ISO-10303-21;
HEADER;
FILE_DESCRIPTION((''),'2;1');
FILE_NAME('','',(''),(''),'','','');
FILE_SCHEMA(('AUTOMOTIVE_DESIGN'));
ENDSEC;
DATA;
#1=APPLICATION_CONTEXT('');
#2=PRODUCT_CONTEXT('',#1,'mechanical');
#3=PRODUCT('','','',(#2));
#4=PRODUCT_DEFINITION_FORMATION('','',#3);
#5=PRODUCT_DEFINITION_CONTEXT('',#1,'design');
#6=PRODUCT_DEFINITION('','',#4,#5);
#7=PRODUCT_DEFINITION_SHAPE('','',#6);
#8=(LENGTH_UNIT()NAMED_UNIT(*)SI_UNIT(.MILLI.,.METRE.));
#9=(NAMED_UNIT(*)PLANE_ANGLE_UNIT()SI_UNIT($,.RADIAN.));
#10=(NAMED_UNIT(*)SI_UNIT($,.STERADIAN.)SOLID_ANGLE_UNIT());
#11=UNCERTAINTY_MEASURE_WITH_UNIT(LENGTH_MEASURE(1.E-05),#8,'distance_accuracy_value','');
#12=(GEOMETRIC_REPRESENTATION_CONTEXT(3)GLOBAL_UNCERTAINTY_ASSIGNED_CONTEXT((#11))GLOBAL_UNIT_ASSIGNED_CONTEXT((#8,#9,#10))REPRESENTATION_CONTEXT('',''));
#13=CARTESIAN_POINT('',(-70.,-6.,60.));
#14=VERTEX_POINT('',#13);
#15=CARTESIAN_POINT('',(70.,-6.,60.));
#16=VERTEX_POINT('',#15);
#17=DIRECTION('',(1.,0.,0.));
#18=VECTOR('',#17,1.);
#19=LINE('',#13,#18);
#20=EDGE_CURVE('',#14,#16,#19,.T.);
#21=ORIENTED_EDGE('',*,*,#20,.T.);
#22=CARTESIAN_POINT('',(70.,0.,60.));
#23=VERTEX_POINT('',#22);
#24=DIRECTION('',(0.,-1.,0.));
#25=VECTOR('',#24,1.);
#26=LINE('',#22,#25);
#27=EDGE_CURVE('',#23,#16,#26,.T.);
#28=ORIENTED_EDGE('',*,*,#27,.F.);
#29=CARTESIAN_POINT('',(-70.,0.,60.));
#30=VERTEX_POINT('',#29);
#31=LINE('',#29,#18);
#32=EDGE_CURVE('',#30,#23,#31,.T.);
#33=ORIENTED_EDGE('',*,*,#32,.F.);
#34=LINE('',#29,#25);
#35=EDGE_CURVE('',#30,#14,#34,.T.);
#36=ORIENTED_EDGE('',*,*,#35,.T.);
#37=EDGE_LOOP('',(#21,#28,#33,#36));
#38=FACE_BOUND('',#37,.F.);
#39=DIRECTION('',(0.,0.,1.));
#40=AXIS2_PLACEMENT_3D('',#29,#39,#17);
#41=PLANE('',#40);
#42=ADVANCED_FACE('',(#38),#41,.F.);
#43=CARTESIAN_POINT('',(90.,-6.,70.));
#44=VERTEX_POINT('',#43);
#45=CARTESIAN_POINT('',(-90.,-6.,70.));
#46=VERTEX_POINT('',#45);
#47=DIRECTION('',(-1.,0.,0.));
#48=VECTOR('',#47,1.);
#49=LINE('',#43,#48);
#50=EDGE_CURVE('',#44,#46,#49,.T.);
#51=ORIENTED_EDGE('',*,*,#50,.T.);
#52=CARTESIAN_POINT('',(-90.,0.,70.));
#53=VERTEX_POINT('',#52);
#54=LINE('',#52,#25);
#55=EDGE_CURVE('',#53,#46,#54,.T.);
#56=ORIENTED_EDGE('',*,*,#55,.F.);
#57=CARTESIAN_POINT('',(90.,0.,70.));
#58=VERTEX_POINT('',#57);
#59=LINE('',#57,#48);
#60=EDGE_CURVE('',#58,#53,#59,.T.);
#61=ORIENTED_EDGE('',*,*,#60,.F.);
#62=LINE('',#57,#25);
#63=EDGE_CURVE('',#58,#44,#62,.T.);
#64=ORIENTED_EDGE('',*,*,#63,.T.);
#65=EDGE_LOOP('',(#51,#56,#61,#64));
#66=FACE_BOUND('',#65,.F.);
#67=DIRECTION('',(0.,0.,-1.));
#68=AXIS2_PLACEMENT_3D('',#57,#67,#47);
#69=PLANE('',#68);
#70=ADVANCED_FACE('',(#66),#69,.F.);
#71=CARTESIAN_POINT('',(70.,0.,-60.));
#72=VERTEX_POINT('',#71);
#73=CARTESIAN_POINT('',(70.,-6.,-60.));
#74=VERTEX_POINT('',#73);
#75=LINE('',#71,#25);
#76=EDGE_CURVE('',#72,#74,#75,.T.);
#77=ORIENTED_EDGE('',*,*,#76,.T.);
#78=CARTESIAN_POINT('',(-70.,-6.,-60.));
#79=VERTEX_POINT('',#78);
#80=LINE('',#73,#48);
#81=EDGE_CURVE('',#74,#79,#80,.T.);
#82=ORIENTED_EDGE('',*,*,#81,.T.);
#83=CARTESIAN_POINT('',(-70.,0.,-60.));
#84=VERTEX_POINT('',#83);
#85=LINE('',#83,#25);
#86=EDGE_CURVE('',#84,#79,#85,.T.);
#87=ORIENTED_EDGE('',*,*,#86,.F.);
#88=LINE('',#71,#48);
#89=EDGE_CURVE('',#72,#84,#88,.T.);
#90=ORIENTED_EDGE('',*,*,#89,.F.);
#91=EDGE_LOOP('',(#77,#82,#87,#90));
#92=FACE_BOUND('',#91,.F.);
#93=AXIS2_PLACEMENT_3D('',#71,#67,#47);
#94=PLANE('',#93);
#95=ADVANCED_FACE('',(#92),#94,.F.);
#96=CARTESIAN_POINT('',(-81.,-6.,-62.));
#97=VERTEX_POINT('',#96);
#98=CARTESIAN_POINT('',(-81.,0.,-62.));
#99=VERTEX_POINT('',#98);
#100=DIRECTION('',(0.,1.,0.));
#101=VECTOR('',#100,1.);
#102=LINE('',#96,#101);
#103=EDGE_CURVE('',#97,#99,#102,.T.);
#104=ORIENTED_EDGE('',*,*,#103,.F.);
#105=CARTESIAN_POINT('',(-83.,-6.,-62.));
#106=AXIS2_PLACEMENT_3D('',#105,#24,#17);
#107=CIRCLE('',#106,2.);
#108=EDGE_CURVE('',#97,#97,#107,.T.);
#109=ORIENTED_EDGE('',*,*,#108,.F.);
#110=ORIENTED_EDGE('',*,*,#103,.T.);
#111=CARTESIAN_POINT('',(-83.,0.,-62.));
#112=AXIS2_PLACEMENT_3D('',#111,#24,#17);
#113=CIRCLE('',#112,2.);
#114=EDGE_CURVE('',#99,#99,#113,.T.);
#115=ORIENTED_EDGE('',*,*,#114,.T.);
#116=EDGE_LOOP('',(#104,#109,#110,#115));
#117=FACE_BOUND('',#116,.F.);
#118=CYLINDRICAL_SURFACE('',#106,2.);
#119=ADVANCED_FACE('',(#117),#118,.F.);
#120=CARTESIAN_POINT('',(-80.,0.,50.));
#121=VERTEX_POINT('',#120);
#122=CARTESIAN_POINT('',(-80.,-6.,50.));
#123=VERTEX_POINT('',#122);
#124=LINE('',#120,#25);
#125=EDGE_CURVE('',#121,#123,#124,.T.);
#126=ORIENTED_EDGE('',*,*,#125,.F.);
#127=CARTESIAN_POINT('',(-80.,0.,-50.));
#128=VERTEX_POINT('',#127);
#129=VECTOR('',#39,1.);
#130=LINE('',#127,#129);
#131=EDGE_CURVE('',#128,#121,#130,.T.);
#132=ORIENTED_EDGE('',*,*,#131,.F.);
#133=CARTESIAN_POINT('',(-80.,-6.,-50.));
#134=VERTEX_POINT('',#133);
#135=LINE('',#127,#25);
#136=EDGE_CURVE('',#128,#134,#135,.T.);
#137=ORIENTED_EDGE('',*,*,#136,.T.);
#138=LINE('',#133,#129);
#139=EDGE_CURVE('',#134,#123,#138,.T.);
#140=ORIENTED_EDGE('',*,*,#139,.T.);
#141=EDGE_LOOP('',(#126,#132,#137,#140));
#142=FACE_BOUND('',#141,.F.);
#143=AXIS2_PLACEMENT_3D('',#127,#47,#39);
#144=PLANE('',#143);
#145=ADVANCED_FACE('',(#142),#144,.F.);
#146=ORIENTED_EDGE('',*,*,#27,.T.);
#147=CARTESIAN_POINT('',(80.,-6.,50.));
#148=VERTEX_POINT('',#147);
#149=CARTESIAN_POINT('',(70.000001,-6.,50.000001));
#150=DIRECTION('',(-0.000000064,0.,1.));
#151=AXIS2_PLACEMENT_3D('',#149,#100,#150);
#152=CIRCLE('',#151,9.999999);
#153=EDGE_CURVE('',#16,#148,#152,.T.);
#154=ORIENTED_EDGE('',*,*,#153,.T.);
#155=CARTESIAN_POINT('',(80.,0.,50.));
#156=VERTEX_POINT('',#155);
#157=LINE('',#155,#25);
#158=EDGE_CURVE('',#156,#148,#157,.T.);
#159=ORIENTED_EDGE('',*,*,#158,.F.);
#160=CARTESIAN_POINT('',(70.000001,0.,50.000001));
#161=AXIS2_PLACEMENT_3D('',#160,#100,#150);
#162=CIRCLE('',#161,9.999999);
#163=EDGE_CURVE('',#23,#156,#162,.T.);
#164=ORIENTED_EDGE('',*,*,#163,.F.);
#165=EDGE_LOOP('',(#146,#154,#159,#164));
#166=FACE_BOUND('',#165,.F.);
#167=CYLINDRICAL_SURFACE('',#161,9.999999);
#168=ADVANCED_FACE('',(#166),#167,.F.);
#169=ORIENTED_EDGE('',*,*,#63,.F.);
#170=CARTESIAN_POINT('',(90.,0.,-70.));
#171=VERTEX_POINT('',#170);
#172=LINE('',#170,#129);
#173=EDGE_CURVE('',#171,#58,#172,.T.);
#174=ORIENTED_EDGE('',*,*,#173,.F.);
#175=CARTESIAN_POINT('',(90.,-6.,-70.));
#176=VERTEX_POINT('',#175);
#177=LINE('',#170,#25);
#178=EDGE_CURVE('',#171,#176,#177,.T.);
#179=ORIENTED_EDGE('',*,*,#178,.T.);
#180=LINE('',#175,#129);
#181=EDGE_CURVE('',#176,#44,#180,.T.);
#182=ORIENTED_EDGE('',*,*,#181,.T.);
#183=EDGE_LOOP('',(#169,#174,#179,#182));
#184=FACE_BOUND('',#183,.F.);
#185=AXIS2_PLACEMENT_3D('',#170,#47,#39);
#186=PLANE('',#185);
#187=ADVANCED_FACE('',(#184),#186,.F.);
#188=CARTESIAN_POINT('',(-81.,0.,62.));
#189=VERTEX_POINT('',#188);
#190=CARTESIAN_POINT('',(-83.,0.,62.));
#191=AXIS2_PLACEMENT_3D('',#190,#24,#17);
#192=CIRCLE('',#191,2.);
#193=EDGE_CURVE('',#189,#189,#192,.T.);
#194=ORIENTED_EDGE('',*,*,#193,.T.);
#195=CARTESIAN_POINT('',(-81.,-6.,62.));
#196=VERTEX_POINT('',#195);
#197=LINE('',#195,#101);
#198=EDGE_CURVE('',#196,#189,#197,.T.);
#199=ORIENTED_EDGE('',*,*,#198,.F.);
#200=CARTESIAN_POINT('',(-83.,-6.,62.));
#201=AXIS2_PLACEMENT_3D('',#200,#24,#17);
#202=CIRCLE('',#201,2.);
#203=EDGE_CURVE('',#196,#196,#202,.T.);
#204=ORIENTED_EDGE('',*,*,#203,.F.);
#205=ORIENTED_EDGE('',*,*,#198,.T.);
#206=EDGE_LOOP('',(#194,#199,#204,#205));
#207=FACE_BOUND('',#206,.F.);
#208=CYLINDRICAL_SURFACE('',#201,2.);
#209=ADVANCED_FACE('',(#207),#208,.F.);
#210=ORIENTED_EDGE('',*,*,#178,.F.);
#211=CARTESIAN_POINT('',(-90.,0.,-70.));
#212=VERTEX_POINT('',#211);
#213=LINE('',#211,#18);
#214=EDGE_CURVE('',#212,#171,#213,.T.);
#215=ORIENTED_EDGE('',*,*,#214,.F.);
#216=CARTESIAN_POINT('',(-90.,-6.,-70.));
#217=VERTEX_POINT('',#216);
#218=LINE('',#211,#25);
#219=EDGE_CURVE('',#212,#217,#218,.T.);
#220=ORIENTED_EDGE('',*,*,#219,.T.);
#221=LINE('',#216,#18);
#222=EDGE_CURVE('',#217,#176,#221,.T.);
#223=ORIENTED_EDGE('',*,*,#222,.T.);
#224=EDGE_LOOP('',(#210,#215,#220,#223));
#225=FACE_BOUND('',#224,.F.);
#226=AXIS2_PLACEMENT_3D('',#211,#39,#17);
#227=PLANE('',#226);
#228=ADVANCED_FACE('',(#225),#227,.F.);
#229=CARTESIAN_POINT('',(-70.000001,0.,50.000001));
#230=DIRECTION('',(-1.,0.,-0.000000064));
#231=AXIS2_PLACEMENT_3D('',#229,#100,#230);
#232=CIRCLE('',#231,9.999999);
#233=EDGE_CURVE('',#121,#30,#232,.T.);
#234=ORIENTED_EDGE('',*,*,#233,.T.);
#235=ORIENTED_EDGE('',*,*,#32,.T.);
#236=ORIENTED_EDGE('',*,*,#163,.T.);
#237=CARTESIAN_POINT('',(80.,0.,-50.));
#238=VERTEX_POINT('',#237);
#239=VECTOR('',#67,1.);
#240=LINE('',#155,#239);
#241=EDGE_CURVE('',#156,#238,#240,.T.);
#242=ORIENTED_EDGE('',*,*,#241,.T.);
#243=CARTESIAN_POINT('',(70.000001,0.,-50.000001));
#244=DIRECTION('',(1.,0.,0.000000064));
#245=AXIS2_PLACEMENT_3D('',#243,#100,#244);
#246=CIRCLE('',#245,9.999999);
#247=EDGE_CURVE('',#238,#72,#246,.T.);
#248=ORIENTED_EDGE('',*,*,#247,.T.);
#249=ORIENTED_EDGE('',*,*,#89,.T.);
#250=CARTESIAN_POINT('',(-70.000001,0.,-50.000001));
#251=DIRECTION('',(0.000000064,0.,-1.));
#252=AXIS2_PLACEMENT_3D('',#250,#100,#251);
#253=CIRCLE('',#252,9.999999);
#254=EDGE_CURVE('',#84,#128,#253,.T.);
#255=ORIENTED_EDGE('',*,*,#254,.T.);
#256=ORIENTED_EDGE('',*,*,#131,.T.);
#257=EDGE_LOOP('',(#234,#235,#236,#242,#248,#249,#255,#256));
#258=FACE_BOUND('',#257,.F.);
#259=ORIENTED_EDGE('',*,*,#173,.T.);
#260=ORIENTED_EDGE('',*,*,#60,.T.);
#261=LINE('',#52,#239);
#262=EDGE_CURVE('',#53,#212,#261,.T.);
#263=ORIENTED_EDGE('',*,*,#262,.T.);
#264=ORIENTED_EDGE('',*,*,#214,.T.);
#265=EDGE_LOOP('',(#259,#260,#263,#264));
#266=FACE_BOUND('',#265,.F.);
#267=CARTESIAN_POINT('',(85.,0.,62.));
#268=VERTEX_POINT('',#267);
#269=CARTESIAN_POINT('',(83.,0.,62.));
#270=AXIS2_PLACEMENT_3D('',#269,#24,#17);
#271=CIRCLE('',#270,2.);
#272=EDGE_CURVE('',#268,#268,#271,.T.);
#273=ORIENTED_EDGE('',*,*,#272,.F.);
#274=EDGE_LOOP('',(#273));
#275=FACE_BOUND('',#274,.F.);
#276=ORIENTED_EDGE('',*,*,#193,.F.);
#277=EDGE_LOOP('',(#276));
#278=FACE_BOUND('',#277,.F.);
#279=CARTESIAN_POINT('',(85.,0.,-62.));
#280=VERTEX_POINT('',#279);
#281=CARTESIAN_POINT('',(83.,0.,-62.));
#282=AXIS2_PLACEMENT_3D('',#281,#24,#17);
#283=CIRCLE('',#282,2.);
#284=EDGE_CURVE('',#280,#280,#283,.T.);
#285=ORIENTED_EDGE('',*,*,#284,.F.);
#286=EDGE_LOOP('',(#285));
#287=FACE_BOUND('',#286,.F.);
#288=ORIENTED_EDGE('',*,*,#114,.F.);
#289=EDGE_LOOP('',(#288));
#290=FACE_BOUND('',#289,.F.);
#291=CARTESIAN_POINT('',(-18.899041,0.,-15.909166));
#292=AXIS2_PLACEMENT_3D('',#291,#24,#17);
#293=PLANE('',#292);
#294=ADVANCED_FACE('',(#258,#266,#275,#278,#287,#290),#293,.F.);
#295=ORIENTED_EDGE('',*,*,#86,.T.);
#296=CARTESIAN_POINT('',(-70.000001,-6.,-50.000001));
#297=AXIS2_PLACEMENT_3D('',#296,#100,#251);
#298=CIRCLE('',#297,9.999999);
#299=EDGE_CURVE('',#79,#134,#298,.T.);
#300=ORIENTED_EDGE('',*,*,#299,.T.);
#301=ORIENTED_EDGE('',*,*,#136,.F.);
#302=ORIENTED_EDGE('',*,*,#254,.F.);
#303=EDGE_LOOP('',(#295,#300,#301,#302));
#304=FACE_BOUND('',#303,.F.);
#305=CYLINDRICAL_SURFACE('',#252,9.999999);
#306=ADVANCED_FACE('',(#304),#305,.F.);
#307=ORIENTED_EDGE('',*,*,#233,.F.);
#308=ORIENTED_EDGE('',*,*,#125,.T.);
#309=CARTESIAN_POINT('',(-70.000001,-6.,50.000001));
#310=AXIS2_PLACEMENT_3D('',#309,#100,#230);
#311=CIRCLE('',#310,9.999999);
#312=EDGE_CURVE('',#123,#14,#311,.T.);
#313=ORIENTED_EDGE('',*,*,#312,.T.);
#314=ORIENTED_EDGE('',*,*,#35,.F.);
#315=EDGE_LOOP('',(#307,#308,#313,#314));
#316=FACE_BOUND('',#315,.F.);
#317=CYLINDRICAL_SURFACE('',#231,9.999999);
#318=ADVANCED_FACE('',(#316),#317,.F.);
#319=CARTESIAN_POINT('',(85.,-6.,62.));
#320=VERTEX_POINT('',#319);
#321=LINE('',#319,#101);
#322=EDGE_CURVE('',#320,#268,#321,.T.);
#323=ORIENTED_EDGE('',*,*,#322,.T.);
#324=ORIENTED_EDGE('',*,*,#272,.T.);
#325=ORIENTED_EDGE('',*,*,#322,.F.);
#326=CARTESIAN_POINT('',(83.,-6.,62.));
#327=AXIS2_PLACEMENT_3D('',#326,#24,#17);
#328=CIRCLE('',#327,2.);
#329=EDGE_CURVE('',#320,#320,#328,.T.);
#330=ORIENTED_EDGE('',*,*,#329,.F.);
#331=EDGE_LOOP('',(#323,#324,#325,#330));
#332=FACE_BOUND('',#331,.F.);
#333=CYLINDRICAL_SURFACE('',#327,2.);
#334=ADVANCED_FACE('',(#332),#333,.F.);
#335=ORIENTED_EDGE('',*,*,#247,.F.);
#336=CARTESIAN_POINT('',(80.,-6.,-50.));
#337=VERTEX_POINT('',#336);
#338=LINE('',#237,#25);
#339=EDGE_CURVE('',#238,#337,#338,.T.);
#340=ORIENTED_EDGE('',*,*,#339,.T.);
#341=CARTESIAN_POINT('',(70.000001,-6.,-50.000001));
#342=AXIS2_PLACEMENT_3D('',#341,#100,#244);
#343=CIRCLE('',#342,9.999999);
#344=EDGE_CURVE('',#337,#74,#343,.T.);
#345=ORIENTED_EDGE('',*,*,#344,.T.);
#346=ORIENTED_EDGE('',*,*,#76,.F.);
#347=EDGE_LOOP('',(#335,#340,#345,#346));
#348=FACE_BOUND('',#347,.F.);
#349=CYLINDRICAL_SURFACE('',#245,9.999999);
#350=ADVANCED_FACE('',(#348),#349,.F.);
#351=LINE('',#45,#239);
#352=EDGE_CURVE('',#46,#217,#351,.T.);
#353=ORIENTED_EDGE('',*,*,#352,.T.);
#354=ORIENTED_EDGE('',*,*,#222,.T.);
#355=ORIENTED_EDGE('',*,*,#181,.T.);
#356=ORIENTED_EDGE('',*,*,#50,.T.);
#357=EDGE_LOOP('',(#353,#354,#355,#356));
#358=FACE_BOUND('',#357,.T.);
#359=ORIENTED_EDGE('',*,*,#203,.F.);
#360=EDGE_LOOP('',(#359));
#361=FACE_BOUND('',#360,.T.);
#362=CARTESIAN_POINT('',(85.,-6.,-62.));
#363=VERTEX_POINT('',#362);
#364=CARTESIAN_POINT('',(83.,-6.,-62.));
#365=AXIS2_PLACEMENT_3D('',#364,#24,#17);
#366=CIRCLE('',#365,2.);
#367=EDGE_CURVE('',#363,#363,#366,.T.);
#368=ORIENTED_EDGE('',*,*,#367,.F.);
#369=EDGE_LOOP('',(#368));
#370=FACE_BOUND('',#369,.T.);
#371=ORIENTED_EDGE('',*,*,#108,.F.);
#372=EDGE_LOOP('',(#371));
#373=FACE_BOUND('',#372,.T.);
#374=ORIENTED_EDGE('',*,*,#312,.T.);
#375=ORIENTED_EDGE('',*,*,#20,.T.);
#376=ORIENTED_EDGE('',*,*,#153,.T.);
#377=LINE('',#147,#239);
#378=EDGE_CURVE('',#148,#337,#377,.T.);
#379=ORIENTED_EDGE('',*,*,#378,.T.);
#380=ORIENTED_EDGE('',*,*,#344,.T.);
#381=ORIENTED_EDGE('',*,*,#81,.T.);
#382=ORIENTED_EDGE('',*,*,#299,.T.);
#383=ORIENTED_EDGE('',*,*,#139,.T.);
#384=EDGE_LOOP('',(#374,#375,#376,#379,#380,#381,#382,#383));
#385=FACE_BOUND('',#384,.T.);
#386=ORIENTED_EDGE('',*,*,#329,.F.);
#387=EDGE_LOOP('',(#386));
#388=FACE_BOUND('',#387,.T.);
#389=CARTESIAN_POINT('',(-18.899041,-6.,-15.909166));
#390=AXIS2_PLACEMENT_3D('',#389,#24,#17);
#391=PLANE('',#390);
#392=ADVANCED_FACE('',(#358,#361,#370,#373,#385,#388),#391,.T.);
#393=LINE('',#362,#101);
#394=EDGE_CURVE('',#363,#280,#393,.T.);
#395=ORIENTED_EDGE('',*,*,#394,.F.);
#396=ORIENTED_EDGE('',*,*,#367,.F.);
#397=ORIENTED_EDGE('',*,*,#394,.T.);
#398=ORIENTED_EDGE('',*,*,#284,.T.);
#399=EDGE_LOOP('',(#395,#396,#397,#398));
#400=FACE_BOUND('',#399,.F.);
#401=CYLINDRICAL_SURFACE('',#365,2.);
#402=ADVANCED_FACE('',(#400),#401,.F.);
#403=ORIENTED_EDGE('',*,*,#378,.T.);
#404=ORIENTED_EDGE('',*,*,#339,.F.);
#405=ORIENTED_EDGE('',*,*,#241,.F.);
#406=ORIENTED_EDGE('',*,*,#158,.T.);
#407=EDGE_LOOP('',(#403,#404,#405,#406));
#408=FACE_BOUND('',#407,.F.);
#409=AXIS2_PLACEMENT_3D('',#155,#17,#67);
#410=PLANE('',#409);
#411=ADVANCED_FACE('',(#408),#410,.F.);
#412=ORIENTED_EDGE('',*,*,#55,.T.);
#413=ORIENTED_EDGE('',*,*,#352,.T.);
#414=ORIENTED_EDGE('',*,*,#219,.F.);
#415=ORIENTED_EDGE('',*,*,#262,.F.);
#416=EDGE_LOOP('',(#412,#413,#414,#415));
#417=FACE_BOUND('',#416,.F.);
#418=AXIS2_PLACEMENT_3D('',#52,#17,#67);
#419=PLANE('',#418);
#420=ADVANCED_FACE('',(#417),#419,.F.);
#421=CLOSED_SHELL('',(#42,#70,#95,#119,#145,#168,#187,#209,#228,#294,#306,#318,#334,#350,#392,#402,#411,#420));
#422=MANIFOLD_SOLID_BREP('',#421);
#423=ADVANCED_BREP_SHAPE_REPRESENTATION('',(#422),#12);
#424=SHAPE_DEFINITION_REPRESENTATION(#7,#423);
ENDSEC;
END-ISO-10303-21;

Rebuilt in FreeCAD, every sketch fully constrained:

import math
import FreeCAD as App
import Part
import Sketcher
from FreeCAD import Vector


def add_polygon(sketch, points):
    """Adds a closed chain of lines whose ends are joined by coincident constraints."""
    first, n = sketch.GeometryCount, len(points)
    for a, b in zip(points, points[1:] + points[:1]):
        sketch.addGeometry(Part.LineSegment(App.Vector(*a, 0), App.Vector(*b, 0)), False)
    for i in range(n):
        sketch.addConstraint(Sketcher.Constraint("Coincident", first + i, 2, first + (i + 1) % n, 1))

doc = App.newDocument("Part")
body = doc.addObject("PartDesign::Body", "Body")

# Sketch on XZ plane
sketch1 = doc.addObject("Sketcher::SketchObject", "Sketch")
body.addObject(sketch1)
sketch1.AttachmentSupport = (doc.XZ_Plane, [""])
sketch1.MapMode = "FlatFace"
add_polygon(sketch1, [(-90, 70), (-90, -70), (90, -70), (90, 70)])  # lines 0-3
sketch1.addGeometry(Part.ArcOfCircle(Part.Circle(Vector(70, -50, 0), Vector(0, 0, 1), 10), math.radians(-90), math.radians(0)), False)  # 4
sketch1.addGeometry(Part.LineSegment(Vector(70, -60, 0), Vector(-70, -60, 0)), False)  # 5
sketch1.addGeometry(Part.ArcOfCircle(Part.Circle(Vector(-70, -50, 0), Vector(0, 0, 1), 10), math.radians(180), math.radians(270)), False)  # 6
sketch1.addGeometry(Part.LineSegment(Vector(-80, -50, 0), Vector(-80, 50, 0)), False)  # 7
sketch1.addGeometry(Part.ArcOfCircle(Part.Circle(Vector(-70, 50, 0), Vector(0, 0, 1), 10), math.radians(90), math.radians(180)), False)  # 8
sketch1.addGeometry(Part.LineSegment(Vector(-70, 60, 0), Vector(70, 60, 0)), False)  # 9
sketch1.addGeometry(Part.ArcOfCircle(Part.Circle(Vector(70, 50, 0), Vector(0, 0, 1), 10), math.radians(0), math.radians(90)), False)  # 10
sketch1.addGeometry(Part.LineSegment(Vector(80, 50, 0), Vector(80, -50, 0)), False)  # 11
sketch1.addConstraint(Sketcher.Constraint("Tangent", 4, 1, 5, 1))
sketch1.addConstraint(Sketcher.Constraint("Tangent", 5, 2, 6, 2))
sketch1.addConstraint(Sketcher.Constraint("Tangent", 6, 1, 7, 1))
sketch1.addConstraint(Sketcher.Constraint("Tangent", 7, 2, 8, 2))
sketch1.addConstraint(Sketcher.Constraint("Tangent", 8, 1, 9, 1))
sketch1.addConstraint(Sketcher.Constraint("Tangent", 9, 2, 10, 2))
sketch1.addConstraint(Sketcher.Constraint("Tangent", 10, 1, 11, 1))
sketch1.addConstraint(Sketcher.Constraint("Tangent", 11, 2, 4, 2))
sketch1.addConstraint(Sketcher.Constraint("Vertical", 0))
sketch1.addConstraint(Sketcher.Constraint("Horizontal", 1))
sketch1.addConstraint(Sketcher.Constraint("Vertical", 2))
sketch1.addConstraint(Sketcher.Constraint("Horizontal", 3))
sketch1.addConstraint(Sketcher.Constraint("Horizontal", 5))
sketch1.addConstraint(Sketcher.Constraint("Vertical", 7))
sketch1.addConstraint(Sketcher.Constraint("Horizontal", 9))
sketch1.addConstraint(Sketcher.Constraint("Vertical", 11))
sketch1.addConstraint(Sketcher.Constraint("Equal", 4, 6))
sketch1.addConstraint(Sketcher.Constraint("Equal", 6, 8))
sketch1.addConstraint(Sketcher.Constraint("Equal", 8, 10))
sketch1.addConstraint(Sketcher.Constraint("Symmetric", 4, 3, 8, 3, -1, 1))
sketch1.addConstraint(Sketcher.Constraint("Symmetric", 0, 2, 2, 2, -1, 1))
sketch1.addConstraint(Sketcher.Constraint("Equal", 9, 0))
sketch1.addConstraint(Sketcher.Constraint("Radius", 4, 9.999999))
sketch1.addConstraint(Sketcher.Constraint("DistanceX", 1, 1, 1, 2, 180.0))
sketch1.addConstraint(Sketcher.Constraint("DistanceX", 5, 2, 5, 1, 140.0))
sketch1.addConstraint(Sketcher.Constraint("DistanceY", 7, 1, 7, 2, 100.0))
pad1 = doc.addObject("PartDesign::Pad", "Pad")
body.addObject(pad1)
pad1.Profile = sketch1
pad1.Length = 6

# Sketch on XZ plane
sketch2 = doc.addObject("Sketcher::SketchObject", "Sketch001")
body.addObject(sketch2)
sketch2.AttachmentSupport = (doc.XZ_Plane, [""])
sketch2.MapMode = "FlatFace"
sketch2.AttachmentOffset = App.Placement(Vector(0, 0, 6), App.Rotation())
sketch2.addGeometry(Part.Circle(Vector(-83, 62, 0), Vector(0, 0, 1), 2), False)
sketch2.addGeometry(Part.Circle(Vector(-83, -62, 0), Vector(0, 0, 1), 2), False)
sketch2.addGeometry(Part.Circle(Vector(83, -62, 0), Vector(0, 0, 1), 2), False)
sketch2.addGeometry(Part.Circle(Vector(83, 62, 0), Vector(0, 0, 1), 2), False)
sketch2.addConstraint(Sketcher.Constraint("Equal", 0, 1))
sketch2.addConstraint(Sketcher.Constraint("Equal", 1, 2))
sketch2.addConstraint(Sketcher.Constraint("Equal", 2, 3))
sketch2.addConstraint(Sketcher.Constraint("Symmetric", 0, 3, 2, 3, -1, 1))
sketch2.addConstraint(Sketcher.Constraint("Symmetric", 1, 3, 3, 3, -1, 1))
sketch2.addConstraint(Sketcher.Constraint("Symmetric", 1, 3, 2, 3, -2))
sketch2.addConstraint(Sketcher.Constraint("Diameter", 0, 4.0))
sketch2.addConstraint(Sketcher.Constraint("DistanceX", 0, 3, -1, 1, 83.0))
sketch2.addConstraint(Sketcher.Constraint("DistanceY", -1, 1, 0, 3, 62.0))
pocket1 = doc.addObject("PartDesign::Pocket", "Pocket")
body.addObject(pocket1)
pocket1.Profile = sketch2
pocket1.Length = 25

doc.recompute()
